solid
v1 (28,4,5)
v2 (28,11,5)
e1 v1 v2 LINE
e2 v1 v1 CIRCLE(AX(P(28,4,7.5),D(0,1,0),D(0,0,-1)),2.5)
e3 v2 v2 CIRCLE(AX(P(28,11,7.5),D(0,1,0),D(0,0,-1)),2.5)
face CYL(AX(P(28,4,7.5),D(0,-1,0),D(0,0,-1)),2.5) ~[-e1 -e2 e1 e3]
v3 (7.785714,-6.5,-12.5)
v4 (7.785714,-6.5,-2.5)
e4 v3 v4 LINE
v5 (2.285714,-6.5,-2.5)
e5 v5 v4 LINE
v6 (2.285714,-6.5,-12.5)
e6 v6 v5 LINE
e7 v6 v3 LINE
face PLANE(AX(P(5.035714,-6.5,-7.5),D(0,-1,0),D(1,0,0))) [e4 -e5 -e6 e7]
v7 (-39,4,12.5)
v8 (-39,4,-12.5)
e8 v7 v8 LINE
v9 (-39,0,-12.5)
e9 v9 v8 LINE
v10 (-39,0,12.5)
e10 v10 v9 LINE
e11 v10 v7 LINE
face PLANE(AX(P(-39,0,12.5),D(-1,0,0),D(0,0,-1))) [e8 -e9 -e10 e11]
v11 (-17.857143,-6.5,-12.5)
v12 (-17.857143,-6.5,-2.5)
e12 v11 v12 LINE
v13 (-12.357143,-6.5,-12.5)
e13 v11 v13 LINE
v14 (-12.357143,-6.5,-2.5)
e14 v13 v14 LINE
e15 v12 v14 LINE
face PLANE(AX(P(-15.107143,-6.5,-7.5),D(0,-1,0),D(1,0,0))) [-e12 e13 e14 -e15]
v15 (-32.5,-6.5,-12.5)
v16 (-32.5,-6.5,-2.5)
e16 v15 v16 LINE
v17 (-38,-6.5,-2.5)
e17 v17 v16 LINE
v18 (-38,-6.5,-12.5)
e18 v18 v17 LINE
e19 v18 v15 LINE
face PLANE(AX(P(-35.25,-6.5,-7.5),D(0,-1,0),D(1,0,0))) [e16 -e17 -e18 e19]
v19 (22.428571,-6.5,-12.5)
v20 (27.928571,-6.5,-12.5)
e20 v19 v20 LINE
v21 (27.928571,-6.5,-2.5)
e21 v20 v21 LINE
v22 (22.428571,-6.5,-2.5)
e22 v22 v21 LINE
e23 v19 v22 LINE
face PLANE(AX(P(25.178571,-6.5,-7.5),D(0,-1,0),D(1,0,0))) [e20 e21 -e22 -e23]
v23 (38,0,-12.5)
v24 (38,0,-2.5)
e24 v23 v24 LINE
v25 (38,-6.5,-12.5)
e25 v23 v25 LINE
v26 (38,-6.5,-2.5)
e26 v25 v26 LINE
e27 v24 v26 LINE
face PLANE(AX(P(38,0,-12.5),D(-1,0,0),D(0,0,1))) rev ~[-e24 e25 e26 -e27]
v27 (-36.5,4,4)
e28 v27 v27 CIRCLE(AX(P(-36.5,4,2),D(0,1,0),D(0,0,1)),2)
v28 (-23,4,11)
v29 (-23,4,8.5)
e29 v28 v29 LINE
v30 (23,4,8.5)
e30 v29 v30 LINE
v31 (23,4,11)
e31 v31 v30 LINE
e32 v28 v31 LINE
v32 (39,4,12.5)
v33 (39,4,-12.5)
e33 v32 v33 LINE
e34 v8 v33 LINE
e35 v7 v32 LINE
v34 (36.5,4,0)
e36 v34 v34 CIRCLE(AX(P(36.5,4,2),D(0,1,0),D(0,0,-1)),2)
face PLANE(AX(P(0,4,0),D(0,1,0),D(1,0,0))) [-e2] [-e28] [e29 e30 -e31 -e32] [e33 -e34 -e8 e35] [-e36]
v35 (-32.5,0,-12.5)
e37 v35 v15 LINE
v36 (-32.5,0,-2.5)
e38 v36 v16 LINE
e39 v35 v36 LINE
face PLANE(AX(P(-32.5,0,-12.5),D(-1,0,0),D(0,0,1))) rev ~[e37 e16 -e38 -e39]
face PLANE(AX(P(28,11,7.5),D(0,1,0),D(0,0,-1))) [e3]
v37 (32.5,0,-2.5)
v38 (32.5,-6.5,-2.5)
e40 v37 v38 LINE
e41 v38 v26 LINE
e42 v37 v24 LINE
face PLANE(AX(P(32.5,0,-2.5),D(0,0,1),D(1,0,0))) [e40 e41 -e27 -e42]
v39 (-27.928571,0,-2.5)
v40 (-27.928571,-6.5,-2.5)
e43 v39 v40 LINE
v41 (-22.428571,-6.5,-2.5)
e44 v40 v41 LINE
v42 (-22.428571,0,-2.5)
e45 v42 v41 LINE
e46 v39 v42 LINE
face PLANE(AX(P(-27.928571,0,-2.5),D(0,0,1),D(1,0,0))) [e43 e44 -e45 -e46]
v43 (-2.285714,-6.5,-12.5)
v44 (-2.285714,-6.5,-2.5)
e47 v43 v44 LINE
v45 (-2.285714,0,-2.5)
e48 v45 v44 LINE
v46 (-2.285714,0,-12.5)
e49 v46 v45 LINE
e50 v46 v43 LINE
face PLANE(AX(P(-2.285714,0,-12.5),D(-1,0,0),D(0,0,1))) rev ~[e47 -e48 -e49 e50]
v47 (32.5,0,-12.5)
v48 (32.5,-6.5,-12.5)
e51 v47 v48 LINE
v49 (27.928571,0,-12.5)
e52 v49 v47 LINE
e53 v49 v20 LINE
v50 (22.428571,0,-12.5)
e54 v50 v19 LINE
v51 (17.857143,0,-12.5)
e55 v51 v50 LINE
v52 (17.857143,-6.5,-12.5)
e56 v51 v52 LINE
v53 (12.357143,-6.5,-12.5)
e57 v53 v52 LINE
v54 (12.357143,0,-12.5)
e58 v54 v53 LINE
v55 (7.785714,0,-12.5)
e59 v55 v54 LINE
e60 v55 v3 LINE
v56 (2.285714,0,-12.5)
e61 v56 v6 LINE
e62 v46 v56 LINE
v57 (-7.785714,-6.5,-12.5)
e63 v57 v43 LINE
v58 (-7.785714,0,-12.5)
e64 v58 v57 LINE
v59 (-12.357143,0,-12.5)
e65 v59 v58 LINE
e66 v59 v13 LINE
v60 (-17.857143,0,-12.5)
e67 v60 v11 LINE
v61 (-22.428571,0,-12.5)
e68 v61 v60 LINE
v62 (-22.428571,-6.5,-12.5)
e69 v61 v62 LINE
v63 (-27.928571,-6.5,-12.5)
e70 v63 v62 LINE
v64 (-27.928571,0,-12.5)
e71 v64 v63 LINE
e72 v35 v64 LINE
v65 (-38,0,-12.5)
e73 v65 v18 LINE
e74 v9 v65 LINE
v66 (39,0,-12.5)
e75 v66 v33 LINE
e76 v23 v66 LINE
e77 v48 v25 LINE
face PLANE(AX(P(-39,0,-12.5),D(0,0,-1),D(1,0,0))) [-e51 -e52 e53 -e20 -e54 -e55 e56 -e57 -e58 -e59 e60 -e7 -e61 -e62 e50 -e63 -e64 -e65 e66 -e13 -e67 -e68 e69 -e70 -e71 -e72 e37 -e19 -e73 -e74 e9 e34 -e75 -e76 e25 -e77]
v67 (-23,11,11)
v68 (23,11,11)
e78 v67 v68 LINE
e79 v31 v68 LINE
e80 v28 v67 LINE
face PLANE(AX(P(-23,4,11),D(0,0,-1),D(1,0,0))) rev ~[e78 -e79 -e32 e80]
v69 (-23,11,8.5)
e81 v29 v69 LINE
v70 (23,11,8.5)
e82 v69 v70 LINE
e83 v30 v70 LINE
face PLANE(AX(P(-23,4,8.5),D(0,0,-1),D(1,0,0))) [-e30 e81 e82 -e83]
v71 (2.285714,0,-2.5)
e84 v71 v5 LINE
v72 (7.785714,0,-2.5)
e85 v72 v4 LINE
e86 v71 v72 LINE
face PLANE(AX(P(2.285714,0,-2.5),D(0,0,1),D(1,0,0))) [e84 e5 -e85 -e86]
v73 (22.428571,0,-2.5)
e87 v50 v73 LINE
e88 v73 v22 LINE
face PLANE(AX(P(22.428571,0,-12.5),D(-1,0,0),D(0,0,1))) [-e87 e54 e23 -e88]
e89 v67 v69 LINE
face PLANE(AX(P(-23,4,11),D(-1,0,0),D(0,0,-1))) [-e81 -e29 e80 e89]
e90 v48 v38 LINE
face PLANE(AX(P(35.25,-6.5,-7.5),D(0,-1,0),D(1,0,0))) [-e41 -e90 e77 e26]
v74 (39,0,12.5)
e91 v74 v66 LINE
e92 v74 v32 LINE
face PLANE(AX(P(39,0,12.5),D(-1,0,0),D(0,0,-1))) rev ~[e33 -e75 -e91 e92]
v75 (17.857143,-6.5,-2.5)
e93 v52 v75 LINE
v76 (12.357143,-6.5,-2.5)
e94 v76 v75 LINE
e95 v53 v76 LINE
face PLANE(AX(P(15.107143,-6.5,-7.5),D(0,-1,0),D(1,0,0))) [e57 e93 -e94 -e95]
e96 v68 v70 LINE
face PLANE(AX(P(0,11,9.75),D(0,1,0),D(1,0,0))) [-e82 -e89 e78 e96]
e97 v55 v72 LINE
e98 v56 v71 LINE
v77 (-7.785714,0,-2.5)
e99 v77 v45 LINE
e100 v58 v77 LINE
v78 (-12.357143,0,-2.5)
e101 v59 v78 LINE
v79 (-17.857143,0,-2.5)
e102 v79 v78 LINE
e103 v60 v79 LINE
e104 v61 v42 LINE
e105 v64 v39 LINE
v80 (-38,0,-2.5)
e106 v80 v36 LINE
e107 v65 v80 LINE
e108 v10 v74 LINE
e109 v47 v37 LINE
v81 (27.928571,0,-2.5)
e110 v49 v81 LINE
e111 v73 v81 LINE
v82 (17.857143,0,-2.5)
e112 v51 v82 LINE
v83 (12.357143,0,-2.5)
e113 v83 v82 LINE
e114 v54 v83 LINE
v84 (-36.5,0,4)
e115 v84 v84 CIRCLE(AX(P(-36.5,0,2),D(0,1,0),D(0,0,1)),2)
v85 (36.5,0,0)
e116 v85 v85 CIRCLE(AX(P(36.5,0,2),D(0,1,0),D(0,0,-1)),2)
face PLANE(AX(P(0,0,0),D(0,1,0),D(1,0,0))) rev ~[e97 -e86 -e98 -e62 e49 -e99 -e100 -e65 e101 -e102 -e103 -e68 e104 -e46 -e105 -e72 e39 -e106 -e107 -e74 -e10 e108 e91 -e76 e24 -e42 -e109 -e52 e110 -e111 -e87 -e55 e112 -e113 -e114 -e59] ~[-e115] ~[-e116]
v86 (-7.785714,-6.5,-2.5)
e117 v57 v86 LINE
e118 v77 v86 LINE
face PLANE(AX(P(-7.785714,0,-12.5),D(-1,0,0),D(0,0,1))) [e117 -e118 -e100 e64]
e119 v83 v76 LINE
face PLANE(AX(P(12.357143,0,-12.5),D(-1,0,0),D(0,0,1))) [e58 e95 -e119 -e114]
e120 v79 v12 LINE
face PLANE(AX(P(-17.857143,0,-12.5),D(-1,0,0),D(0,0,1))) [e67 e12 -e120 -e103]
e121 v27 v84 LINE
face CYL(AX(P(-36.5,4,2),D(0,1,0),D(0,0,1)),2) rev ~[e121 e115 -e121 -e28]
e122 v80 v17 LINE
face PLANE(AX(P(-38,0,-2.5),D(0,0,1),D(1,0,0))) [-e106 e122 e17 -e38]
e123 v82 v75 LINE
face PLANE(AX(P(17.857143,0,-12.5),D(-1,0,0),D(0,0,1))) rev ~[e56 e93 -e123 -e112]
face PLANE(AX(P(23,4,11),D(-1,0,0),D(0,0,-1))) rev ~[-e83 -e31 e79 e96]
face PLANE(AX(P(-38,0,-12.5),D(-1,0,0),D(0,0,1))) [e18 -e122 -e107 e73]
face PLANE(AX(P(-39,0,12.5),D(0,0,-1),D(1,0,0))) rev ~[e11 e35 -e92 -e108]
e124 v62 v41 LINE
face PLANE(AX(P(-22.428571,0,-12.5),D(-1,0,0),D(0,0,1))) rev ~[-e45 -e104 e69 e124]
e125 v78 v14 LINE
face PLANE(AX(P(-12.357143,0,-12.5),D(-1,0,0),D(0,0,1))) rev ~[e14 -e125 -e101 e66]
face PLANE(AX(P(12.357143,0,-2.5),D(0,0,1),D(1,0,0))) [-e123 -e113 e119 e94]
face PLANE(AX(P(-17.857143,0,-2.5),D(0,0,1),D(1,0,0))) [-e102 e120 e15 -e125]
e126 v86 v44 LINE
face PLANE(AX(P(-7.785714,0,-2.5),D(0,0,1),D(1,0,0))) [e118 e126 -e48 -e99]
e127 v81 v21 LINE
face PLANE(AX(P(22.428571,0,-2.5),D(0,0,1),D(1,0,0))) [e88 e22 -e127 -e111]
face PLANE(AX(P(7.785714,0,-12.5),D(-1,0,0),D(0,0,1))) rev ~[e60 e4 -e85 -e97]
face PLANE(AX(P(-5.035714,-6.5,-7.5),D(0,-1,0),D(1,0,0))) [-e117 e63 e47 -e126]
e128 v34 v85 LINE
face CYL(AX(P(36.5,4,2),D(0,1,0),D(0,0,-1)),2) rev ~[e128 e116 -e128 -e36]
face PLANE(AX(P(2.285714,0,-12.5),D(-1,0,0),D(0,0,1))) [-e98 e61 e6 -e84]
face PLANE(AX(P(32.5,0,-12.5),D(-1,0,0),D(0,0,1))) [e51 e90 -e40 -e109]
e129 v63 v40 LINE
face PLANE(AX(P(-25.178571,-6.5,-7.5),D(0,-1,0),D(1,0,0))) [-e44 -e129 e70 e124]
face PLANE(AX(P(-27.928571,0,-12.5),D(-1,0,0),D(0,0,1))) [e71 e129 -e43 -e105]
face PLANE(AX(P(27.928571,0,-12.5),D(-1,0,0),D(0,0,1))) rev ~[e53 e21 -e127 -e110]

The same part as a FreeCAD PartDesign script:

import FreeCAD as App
import Part
import Sketcher

V = App.Vector
Q = App.Units.Quantity

doc = App.newDocument("Part")
body = doc.addObject("PartDesign::Body", "Body")

# Sketch on XZ plane
sketch1 = body.newObject("Sketcher::SketchObject", "Sketch")
sketch1.AttachmentSupport = (doc.getObject("XZ_Plane"), [""])
sketch1.MapMode = "FlatFace"
sketch1.addGeometry([
    Part.LineSegment(V(-39, -12.5, 0), V(-39, 12.5, 0)),
    Part.LineSegment(V(-39, 12.5, 0), V(39, 12.5, 0)),
    Part.LineSegment(V(39, 12.5, 0), V(39, -12.5, 0)),
    Part.LineSegment(V(39, -12.5, 0), V(-39, -12.5, 0)),
], False)
sketch1.addConstraint([
    Sketcher.Constraint("Coincident", 0, 2, 1, 1),
    Sketcher.Constraint("Coincident", 1, 2, 2, 1),
    Sketcher.Constraint("Coincident", 2, 2, 3, 1),
    Sketcher.Constraint("Coincident", 3, 2, 0, 1),
    Sketcher.Constraint("Vertical", 0),
    Sketcher.Constraint("Horizontal", 1),
    Sketcher.Constraint("Vertical", 2),
    Sketcher.Constraint("Horizontal", 3),
    Sketcher.Constraint("Symmetric", 0, 2, 2, 2, -1, 1),
    Sketcher.Constraint("DistanceX", 1, 1, 1, 2, Q("78 mm")),
    Sketcher.Constraint("DistanceY", 0, 1, 0, 2, Q("25 mm")),
])
pad1 = body.newObject("PartDesign::Pad", "Pad")
pad1.Profile = sketch1
pad1.Length = 4
pad1.Reversed = True

# Sketch on XZ plane
sketch2 = body.newObject("Sketcher::SketchObject", "Sketch001")
sketch2.AttachmentSupport = (doc.getObject("XZ_Plane"), [""])
sketch2.MapMode = "FlatFace"
sketch2.AttachmentOffset = App.Placement(V(0, 0, -4), App.Rotation())
sketch2.addGeometry([
    Part.Circle(V(28, 7.5, 0), V(0, 0, 1), 2.5),  # 0
    Part.LineSegment(V(-23, 8.5, 0), V(-23, 11, 0)),  # 1
    Part.LineSegment(V(-23, 11, 0), V(23, 11, 0)),  # 2
    Part.LineSegment(V(23, 11, 0), V(23, 8.5, 0)),  # 3
    Part.LineSegment(V(23, 8.5, 0), V(-23, 8.5, 0)),  # 4
], False)
sketch2.addConstraint([
    Sketcher.Constraint("Coincident", 1, 2, 2, 1),
    Sketcher.Constraint("Coincident", 2, 2, 3, 1),
    Sketcher.Constraint("Coincident", 3, 2, 4, 1),
    Sketcher.Constraint("Coincident", 4, 2, 1, 1),
    Sketcher.Constraint("Vertical", 1),
    Sketcher.Constraint("Horizontal", 2),
    Sketcher.Constraint("Vertical", 3),
    Sketcher.Constraint("Horizontal", 4),
    Sketcher.Constraint("Diameter", 0, Q("5 mm")),
    Sketcher.Constraint("DistanceX", 2, 1, 2, 2, Q("46 mm")),
    Sketcher.Constraint("DistanceY", 1, 1, 1, 2, Q("2.5 mm")),
    Sketcher.Constraint("DistanceX", -1, 1, 0, 3, Q("28 mm")),
    Sketcher.Constraint("DistanceX", 1, 2, -1, 1, Q("23 mm")),
    Sketcher.Constraint("DistanceY", -1, 1, 1, 2, Q("11 mm")),
    Sketcher.Constraint("DistanceY", 0, 3, 3, 2, Q("1 mm")),
])
pad2 = body.newObject("PartDesign::Pad", "Pad001")
pad2.Profile = sketch2
pad2.Length = 7
pad2.Reversed = True

# Sketch on XZ plane
sketch3 = body.newObject("Sketcher::SketchObject", "Sketch002")
sketch3.AttachmentSupport = (doc.getObject("XZ_Plane"), [""])
sketch3.MapMode = "FlatFace"
sketch3.addGeometry([
    Part.LineSegment(V(-38, -2.5, 0), V(-38, -12.5, 0)),  # 0
    Part.LineSegment(V(-38, -12.5, 0), V(-32.5, -12.5, 0)),  # 1
    Part.LineSegment(V(-32.5, -12.5, 0), V(-32.5, -2.5, 0)),  # 2
    Part.LineSegment(V(-32.5, -2.5, 0), V(-38, -2.5, 0)),  # 3
    Part.LineSegment(V(-27.928571, -2.5, 0), V(-27.928571, -12.5, 0)),  # 4
    Part.LineSegment(V(-27.928571, -12.5, 0), V(-22.428571, -12.5, 0)),  # 5
    Part.LineSegment(V(-22.428571, -12.5, 0), V(-22.428571, -2.5, 0)),  # 6
    Part.LineSegment(V(-22.428571, -2.5, 0), V(-27.928571, -2.5, 0)),  # 7
    Part.LineSegment(V(-17.857143, -2.5, 0), V(-17.857143, -12.5, 0)),  # 8
    Part.LineSegment(V(-17.857143, -12.5, 0), V(-12.357143, -12.5, 0)),  # 9
    Part.LineSegment(V(-12.357143, -12.5, 0), V(-12.357143, -2.5, 0)),  # 10
    Part.LineSegment(V(-12.357143, -2.5, 0), V(-17.857143, -2.5, 0)),  # 11
    Part.LineSegment(V(-7.785714, -2.5, 0), V(-7.785714, -12.5, 0)),  # 12
    Part.LineSegment(V(-7.785714, -12.5, 0), V(-2.285714, -12.5, 0)),  # 13
    Part.LineSegment(V(-2.285714, -12.5, 0), V(-2.285714, -2.5, 0)),  # 14
    Part.LineSegment(V(-2.285714, -2.5, 0), V(-7.785714, -2.5, 0)),  # 15
    Part.LineSegment(V(2.285714, -2.5, 0), V(2.285714, -12.5, 0)),  # 16
    Part.LineSegment(V(2.285714, -12.5, 0), V(7.785714, -12.5, 0)),  # 17
    Part.LineSegment(V(7.785714, -12.5, 0), V(7.785714, -2.5, 0)),  # 18
    Part.LineSegment(V(7.785714, -2.5, 0), V(2.285714, -2.5, 0)),  # 19
    Part.LineSegment(V(12.357143, -2.5, 0), V(12.357143, -12.5, 0)),  # 20
    Part.LineSegment(V(12.357143, -12.5, 0), V(17.857143, -12.5, 0)),  # 21
    Part.LineSegment(V(17.857143, -12.5, 0), V(17.857143, -2.5, 0)),  # 22
    Part.LineSegment(V(17.857143, -2.5, 0), V(12.357143, -2.5, 0)),  # 23
    Part.LineSegment(V(22.428571, -2.5, 0), V(22.428571, -12.5, 0)),  # 24
    Part.LineSegment(V(22.428571, -12.5, 0), V(27.928571, -12.5, 0)),  # 25
    Part.LineSegment(V(27.928571, -12.5, 0), V(27.928571, -2.5, 0)),  # 26
    Part.LineSegment(V(27.928571, -2.5, 0), V(22.428571, -2.5, 0)),  # 27
    Part.LineSegment(V(32.5, -2.5, 0), V(32.5, -12.5, 0)),  # 28
    Part.LineSegment(V(32.5, -12.5, 0), V(38, -12.5, 0)),  # 29
    Part.LineSegment(V(38, -12.5, 0), V(38, -2.5, 0)),  # 30
    Part.LineSegment(V(38, -2.5, 0), V(32.5, -2.5, 0)),  # 31
], False)
sketch3.addConstraint([
    Sketcher.Constraint("Coincident", 0, 2, 1, 1),
    Sketcher.Constraint("Coincident", 1, 2, 2, 1),
    Sketcher.Constraint("Coincident", 2, 2, 3, 1),
    Sketcher.Constraint("Coincident", 3, 2, 0, 1),
    Sketcher.Constraint("Coincident", 4, 2, 5, 1),
    Sketcher.Constraint("Coincident", 5, 2, 6, 1),
    Sketcher.Constraint("Coincident", 6, 2, 7, 1),
    Sketcher.Constraint("Coincident", 7, 2, 4, 1),
    Sketcher.Constraint("Coincident", 8, 2, 9, 1),
    Sketcher.Constraint("Coincident", 9, 2, 10, 1),
    Sketcher.Constraint("Coincident", 10, 2, 11, 1),
    Sketcher.Constraint("Coincident", 11, 2, 8, 1),
    Sketcher.Constraint("Coincident", 12, 2, 13, 1),
    Sketcher.Constraint("Coincident", 13, 2, 14, 1),
    Sketcher.Constraint("Coincident", 14, 2, 15, 1),
    Sketcher.Constraint("Coincident", 15, 2, 12, 1),
    Sketcher.Constraint("Coincident", 16, 2, 17, 1),
    Sketcher.Constraint("Coincident", 17, 2, 18, 1),
    Sketcher.Constraint("Coincident", 18, 2, 19, 1),
    Sketcher.Constraint("Coincident", 19, 2, 16, 1),
    Sketcher.Constraint("Coincident", 20, 2, 21, 1),
    Sketcher.Constraint("Coincident", 21, 2, 22, 1),
    Sketcher.Constraint("Coincident", 22, 2, 23, 1),
    Sketcher.Constraint("Coincident", 23, 2, 20, 1),
    Sketcher.Constraint("Coincident", 24, 2, 25, 1),
    Sketcher.Constraint("Coincident", 25, 2, 26, 1),
    Sketcher.Constraint("Coincident", 26, 2, 27, 1),
    Sketcher.Constraint("Coincident", 27, 2, 24, 1),
    Sketcher.Constraint("Coincident", 28, 2, 29, 1),
    Sketcher.Constraint("Coincident", 29, 2, 30, 1),
    Sketcher.Constraint("Coincident", 30, 2, 31, 1),
    Sketcher.Constraint("Coincident", 31, 2, 28, 1),
    Sketcher.Constraint("Vertical", 0),
    Sketcher.Constraint("Horizontal", 1),
    Sketcher.Constraint("Vertical", 2),
    Sketcher.Constraint("Horizontal", 3),
    Sketcher.Constraint("Vertical", 4),
    Sketcher.Constraint("Horizontal", 5),
    Sketcher.Constraint("Vertical", 6),
    Sketcher.Constraint("Horizontal", 7),
    Sketcher.Constraint("Vertical", 8),
    Sketcher.Constraint("Horizontal", 9),
    Sketcher.Constraint("Vertical", 10),
    Sketcher.Constraint("Horizontal", 11),
    Sketcher.Constraint("Vertical", 12),
    Sketcher.Constraint("Horizontal", 13),
    Sketcher.Constraint("Vertical", 14),
    Sketcher.Constraint("Horizontal", 15),
    Sketcher.Constraint("Vertical", 16),
    Sketcher.Constraint("Horizontal", 17),
    Sketcher.Constraint("Vertical", 18),
    Sketcher.Constraint("Horizontal", 19),
    Sketcher.Constraint("Vertical", 20),
    Sketcher.Constraint("Horizontal", 21),
    Sketcher.Constraint("Vertical", 22),
    Sketcher.Constraint("Horizontal", 23),
    Sketcher.Constraint("Vertical", 24),
    Sketcher.Constraint("Horizontal", 25),
    Sketcher.Constraint("Vertical", 26),
    Sketcher.Constraint("Horizontal", 27),
    Sketcher.Constraint("Vertical", 28),
    Sketcher.Constraint("Horizontal", 29),
    Sketcher.Constraint("Vertical", 30),
    Sketcher.Constraint("Horizontal", 31),
    Sketcher.Constraint("Symmetric", 13, 2, 16, 2, -2),
    Sketcher.Constraint("Symmetric", 15, 2, 18, 2, -2),
    Sketcher.Constraint("Symmetric", 9, 2, 20, 2, -2),
    Sketcher.Constraint("Symmetric", 11, 2, 22, 2, -2),
    Sketcher.Constraint("Symmetric", 5, 2, 24, 2, -2),
    Sketcher.Constraint("Symmetric", 7, 2, 26, 2, -2),
    Sketcher.Constraint("Symmetric", 1, 2, 28, 2, -2),
    Sketcher.Constraint("Symmetric", 3, 2, 30, 2, -2),
    Sketcher.Constraint("Horizontal", 1, 2, 4, 2),
    Sketcher.Constraint("Horizontal", 3, 2, 6, 2),
    Sketcher.Constraint("Horizontal", 5, 2, 8, 2),
    Sketcher.Constraint("Horizontal", 7, 2, 10, 2),
    Sketcher.Constraint("Horizontal", 9, 2, 12, 2),
    Sketcher.Constraint("Horizontal", 11, 2, 14, 2),
    Sketcher.Constraint("Equal", 3, 5),
    Sketcher.Constraint("Equal", 7, 9),
    Sketcher.Constraint("Equal", 11, 13),
    Sketcher.Constraint("DistanceY", 0, 2, 0, 1, Q("10 mm")),
    Sketcher.Constraint("DistanceX", 1, 1, 1, 2, Q("5.5 mm")),
    Sketcher.Constraint("DistanceX", 0, 2, -1, 1, Q("38 mm")),
    Sketcher.Constraint("DistanceY", 0, 2, -1, 1, Q("12.5 mm")),
    Sketcher.Constraint("DistanceX", 4, 2, -1, 1, Q("27.928571 mm")),
    Sketcher.Constraint("DistanceX", 5, 2, 8, 2, Q("4.571429 mm")),
    Sketcher.Constraint("DistanceX", 9, 2, 12, 2, Q("4.571429 mm")),
])
pad3 = body.newObject("PartDesign::Pad", "Pad002")
pad3.Profile = sketch3
pad3.Length = 6.5

# Sketch on XZ plane
sketch4 = body.newObject("Sketcher::SketchObject", "Sketch003")
sketch4.AttachmentSupport = (doc.getObject("XZ_Plane"), [""])
sketch4.MapMode = "FlatFace"
sketch4.AttachmentOffset = App.Placement(V(0, 0, -4), App.Rotation())
sketch4.addGeometry([
    Part.Circle(V(-36.5, 2, 0), V(0, 0, 1), 2),
    Part.Circle(V(36.5, 2, 0), V(0, 0, 1), 2),
], False)
sketch4.addConstraint([
    Sketcher.Constraint("Equal", 0, 1),
    Sketcher.Constraint("Symmetric", 0, 3, 1, 3, -2),
    Sketcher.Constraint("Diameter", 0, Q("4 mm")),
    Sketcher.Constraint("DistanceY", -1, 1, 0, 3, Q("2 mm")),
    Sketcher.Constraint("DistanceX", 0, 3, 1, 3, Q("73 mm")),
])
pocket1 = body.newObject("PartDesign::Pocket", "Pocket")
pocket1.Profile = sketch4
pocket1.Length = 10
pocket1.Reversed = True

doc.recompute()
